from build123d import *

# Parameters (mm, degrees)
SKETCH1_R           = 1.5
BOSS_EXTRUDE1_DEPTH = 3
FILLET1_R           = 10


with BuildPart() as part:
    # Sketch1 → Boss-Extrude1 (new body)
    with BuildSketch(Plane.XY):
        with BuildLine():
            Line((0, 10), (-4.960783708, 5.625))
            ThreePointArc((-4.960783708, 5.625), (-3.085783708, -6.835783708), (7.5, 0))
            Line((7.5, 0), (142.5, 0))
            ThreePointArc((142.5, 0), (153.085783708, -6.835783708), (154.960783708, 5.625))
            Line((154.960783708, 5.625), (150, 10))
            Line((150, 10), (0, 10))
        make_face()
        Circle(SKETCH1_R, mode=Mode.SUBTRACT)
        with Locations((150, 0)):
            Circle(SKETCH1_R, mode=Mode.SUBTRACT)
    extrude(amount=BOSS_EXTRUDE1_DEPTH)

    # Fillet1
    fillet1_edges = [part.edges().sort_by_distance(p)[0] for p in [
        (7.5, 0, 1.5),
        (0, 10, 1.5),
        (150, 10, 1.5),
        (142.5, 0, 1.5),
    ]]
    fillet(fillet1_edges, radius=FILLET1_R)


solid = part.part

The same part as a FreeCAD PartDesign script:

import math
import FreeCAD as App
import Part
import Sketcher


def edges_at(feature, points):
    """Names of the edges that pass closest to the given points."""
    edges = feature.Shape.Edges
    near = lambda p: min(range(len(edges)), key=lambda i: edges[i].distToShape(Part.Vertex(*p))[0])
    return sorted({f"Edge{near(p) + 1}" for p in points})

doc = App.newDocument("Part")
params = doc.addObject("Spreadsheet::Sheet", "Params")
for row, (alias, value) in enumerate([
    ("sketch1_diameter", "3 mm"),
    ("sketch1_radius", "7.5 mm"),
    ("sketch1_width", "135 mm"),
    ("pad1_length", "3 mm"),
    ("fillet_radius", "10 mm"),
], start=1):
    params.set(f"A{row}", alias)
    params.set(f"B{row}", "=" + value)
    params.setAlias(f"B{row}", alias)

body = doc.addObject("PartDesign::Body", "Body")

sketch1 = body.newObject("Sketcher::SketchObject", "Sketch")
sketch1.AttachmentSupport = (doc.getObject("XY_Plane"), [""])
sketch1.MapMode = "FlatFace"
sketch1.addGeometry([
    Part.LineSegment(App.Vector(0, 10, 0), App.Vector(-5, 5.6, 0)),
    Part.ArcOfCircle(Part.Circle(App.Vector(0, 0, 0), App.Vector(0, 0, 1), 7.5), math.radians(131), math.radians(360)),
    Part.LineSegment(App.Vector(7.5, 0, 0), App.Vector(142.5, 0, 0)),
    Part.ArcOfCircle(Part.Circle(App.Vector(150, 0, 0), App.Vector(0, 0, 1), 7.5), math.radians(180), math.radians(409)),
    Part.LineSegment(App.Vector(155, 5.6, 0), App.Vector(150, 10, 0)),
    Part.LineSegment(App.Vector(150, 10, 0), App.Vector(0, 10, 0)),
    Part.Circle(App.Vector(0, 0, 0), App.Vector(0, 0, 1), 1.5),
    Part.Circle(App.Vector(150, 0, 0), App.Vector(0, 0, 1), 1.5),
], False)
sketch1.addConstraint([
    Sketcher.Constraint("Tangent", 0, 2, 1, 1),
    Sketcher.Constraint("Coincident", 1, 2, 2, 1),
    Sketcher.Constraint("Coincident", 2, 2, 3, 1),
    Sketcher.Constraint("Tangent", 3, 2, 4, 1),
    Sketcher.Constraint("Coincident", 4, 2, 5, 1),
    Sketcher.Constraint("Coincident", 5, 2, 0, 1),
    Sketcher.Constraint("Horizontal", 2),
    Sketcher.Constraint("Horizontal", 5),
    Sketcher.Constraint("Coincident", 1, 3, -1, 1),
    Sketcher.Constraint("Coincident", 6, 3, -1, 1),
    Sketcher.Constraint("Coincident", 7, 3, 3, 3),
    Sketcher.Constraint("Equal", 1, 3),
    Sketcher.Constraint("Equal", 6, 7),
    Sketcher.Constraint("PointOnObject", 3, 3, -1),
    Sketcher.Constraint("PointOnObject", 1, 2, -1),
    Sketcher.Constraint("PointOnObject", 5, 2, -2),
    Sketcher.Constraint("Horizontal", 0, 2, 3, 2),
    Sketcher.Constraint("Diameter", 6, 3.0),
    Sketcher.Constraint("Radius", 1, 7.5),
    Sketcher.Constraint("DistanceX", 2, 1, 2, 2, 135.0),
    Sketcher.Constraint("DistanceY", -1, 1, 4, 2, 10.0),
])
sketch1.setExpression("Constraints[17]", "Params.sketch1_diameter")
sketch1.setExpression("Constraints[18]", "Params.sketch1_radius")
sketch1.setExpression("Constraints[19]", "Params.sketch1_width")
pad1 = body.newObject("PartDesign::Pad", "Pad")
pad1.Profile = sketch1
pad1.setExpression("Length", "Params.pad1_length")
doc.recompute()

fillet = body.newObject("PartDesign::Fillet", "Fillet")
fillet.Base = (pad1, edges_at(pad1, [
    (7.5, 0, 1.5),
    (0, 10, 1.5),
    (150, 10, 1.5),
    (142.5, 0, 1.5),
]))
fillet.setExpression("Radius", "Params.fillet_radius")

doc.recompute()
